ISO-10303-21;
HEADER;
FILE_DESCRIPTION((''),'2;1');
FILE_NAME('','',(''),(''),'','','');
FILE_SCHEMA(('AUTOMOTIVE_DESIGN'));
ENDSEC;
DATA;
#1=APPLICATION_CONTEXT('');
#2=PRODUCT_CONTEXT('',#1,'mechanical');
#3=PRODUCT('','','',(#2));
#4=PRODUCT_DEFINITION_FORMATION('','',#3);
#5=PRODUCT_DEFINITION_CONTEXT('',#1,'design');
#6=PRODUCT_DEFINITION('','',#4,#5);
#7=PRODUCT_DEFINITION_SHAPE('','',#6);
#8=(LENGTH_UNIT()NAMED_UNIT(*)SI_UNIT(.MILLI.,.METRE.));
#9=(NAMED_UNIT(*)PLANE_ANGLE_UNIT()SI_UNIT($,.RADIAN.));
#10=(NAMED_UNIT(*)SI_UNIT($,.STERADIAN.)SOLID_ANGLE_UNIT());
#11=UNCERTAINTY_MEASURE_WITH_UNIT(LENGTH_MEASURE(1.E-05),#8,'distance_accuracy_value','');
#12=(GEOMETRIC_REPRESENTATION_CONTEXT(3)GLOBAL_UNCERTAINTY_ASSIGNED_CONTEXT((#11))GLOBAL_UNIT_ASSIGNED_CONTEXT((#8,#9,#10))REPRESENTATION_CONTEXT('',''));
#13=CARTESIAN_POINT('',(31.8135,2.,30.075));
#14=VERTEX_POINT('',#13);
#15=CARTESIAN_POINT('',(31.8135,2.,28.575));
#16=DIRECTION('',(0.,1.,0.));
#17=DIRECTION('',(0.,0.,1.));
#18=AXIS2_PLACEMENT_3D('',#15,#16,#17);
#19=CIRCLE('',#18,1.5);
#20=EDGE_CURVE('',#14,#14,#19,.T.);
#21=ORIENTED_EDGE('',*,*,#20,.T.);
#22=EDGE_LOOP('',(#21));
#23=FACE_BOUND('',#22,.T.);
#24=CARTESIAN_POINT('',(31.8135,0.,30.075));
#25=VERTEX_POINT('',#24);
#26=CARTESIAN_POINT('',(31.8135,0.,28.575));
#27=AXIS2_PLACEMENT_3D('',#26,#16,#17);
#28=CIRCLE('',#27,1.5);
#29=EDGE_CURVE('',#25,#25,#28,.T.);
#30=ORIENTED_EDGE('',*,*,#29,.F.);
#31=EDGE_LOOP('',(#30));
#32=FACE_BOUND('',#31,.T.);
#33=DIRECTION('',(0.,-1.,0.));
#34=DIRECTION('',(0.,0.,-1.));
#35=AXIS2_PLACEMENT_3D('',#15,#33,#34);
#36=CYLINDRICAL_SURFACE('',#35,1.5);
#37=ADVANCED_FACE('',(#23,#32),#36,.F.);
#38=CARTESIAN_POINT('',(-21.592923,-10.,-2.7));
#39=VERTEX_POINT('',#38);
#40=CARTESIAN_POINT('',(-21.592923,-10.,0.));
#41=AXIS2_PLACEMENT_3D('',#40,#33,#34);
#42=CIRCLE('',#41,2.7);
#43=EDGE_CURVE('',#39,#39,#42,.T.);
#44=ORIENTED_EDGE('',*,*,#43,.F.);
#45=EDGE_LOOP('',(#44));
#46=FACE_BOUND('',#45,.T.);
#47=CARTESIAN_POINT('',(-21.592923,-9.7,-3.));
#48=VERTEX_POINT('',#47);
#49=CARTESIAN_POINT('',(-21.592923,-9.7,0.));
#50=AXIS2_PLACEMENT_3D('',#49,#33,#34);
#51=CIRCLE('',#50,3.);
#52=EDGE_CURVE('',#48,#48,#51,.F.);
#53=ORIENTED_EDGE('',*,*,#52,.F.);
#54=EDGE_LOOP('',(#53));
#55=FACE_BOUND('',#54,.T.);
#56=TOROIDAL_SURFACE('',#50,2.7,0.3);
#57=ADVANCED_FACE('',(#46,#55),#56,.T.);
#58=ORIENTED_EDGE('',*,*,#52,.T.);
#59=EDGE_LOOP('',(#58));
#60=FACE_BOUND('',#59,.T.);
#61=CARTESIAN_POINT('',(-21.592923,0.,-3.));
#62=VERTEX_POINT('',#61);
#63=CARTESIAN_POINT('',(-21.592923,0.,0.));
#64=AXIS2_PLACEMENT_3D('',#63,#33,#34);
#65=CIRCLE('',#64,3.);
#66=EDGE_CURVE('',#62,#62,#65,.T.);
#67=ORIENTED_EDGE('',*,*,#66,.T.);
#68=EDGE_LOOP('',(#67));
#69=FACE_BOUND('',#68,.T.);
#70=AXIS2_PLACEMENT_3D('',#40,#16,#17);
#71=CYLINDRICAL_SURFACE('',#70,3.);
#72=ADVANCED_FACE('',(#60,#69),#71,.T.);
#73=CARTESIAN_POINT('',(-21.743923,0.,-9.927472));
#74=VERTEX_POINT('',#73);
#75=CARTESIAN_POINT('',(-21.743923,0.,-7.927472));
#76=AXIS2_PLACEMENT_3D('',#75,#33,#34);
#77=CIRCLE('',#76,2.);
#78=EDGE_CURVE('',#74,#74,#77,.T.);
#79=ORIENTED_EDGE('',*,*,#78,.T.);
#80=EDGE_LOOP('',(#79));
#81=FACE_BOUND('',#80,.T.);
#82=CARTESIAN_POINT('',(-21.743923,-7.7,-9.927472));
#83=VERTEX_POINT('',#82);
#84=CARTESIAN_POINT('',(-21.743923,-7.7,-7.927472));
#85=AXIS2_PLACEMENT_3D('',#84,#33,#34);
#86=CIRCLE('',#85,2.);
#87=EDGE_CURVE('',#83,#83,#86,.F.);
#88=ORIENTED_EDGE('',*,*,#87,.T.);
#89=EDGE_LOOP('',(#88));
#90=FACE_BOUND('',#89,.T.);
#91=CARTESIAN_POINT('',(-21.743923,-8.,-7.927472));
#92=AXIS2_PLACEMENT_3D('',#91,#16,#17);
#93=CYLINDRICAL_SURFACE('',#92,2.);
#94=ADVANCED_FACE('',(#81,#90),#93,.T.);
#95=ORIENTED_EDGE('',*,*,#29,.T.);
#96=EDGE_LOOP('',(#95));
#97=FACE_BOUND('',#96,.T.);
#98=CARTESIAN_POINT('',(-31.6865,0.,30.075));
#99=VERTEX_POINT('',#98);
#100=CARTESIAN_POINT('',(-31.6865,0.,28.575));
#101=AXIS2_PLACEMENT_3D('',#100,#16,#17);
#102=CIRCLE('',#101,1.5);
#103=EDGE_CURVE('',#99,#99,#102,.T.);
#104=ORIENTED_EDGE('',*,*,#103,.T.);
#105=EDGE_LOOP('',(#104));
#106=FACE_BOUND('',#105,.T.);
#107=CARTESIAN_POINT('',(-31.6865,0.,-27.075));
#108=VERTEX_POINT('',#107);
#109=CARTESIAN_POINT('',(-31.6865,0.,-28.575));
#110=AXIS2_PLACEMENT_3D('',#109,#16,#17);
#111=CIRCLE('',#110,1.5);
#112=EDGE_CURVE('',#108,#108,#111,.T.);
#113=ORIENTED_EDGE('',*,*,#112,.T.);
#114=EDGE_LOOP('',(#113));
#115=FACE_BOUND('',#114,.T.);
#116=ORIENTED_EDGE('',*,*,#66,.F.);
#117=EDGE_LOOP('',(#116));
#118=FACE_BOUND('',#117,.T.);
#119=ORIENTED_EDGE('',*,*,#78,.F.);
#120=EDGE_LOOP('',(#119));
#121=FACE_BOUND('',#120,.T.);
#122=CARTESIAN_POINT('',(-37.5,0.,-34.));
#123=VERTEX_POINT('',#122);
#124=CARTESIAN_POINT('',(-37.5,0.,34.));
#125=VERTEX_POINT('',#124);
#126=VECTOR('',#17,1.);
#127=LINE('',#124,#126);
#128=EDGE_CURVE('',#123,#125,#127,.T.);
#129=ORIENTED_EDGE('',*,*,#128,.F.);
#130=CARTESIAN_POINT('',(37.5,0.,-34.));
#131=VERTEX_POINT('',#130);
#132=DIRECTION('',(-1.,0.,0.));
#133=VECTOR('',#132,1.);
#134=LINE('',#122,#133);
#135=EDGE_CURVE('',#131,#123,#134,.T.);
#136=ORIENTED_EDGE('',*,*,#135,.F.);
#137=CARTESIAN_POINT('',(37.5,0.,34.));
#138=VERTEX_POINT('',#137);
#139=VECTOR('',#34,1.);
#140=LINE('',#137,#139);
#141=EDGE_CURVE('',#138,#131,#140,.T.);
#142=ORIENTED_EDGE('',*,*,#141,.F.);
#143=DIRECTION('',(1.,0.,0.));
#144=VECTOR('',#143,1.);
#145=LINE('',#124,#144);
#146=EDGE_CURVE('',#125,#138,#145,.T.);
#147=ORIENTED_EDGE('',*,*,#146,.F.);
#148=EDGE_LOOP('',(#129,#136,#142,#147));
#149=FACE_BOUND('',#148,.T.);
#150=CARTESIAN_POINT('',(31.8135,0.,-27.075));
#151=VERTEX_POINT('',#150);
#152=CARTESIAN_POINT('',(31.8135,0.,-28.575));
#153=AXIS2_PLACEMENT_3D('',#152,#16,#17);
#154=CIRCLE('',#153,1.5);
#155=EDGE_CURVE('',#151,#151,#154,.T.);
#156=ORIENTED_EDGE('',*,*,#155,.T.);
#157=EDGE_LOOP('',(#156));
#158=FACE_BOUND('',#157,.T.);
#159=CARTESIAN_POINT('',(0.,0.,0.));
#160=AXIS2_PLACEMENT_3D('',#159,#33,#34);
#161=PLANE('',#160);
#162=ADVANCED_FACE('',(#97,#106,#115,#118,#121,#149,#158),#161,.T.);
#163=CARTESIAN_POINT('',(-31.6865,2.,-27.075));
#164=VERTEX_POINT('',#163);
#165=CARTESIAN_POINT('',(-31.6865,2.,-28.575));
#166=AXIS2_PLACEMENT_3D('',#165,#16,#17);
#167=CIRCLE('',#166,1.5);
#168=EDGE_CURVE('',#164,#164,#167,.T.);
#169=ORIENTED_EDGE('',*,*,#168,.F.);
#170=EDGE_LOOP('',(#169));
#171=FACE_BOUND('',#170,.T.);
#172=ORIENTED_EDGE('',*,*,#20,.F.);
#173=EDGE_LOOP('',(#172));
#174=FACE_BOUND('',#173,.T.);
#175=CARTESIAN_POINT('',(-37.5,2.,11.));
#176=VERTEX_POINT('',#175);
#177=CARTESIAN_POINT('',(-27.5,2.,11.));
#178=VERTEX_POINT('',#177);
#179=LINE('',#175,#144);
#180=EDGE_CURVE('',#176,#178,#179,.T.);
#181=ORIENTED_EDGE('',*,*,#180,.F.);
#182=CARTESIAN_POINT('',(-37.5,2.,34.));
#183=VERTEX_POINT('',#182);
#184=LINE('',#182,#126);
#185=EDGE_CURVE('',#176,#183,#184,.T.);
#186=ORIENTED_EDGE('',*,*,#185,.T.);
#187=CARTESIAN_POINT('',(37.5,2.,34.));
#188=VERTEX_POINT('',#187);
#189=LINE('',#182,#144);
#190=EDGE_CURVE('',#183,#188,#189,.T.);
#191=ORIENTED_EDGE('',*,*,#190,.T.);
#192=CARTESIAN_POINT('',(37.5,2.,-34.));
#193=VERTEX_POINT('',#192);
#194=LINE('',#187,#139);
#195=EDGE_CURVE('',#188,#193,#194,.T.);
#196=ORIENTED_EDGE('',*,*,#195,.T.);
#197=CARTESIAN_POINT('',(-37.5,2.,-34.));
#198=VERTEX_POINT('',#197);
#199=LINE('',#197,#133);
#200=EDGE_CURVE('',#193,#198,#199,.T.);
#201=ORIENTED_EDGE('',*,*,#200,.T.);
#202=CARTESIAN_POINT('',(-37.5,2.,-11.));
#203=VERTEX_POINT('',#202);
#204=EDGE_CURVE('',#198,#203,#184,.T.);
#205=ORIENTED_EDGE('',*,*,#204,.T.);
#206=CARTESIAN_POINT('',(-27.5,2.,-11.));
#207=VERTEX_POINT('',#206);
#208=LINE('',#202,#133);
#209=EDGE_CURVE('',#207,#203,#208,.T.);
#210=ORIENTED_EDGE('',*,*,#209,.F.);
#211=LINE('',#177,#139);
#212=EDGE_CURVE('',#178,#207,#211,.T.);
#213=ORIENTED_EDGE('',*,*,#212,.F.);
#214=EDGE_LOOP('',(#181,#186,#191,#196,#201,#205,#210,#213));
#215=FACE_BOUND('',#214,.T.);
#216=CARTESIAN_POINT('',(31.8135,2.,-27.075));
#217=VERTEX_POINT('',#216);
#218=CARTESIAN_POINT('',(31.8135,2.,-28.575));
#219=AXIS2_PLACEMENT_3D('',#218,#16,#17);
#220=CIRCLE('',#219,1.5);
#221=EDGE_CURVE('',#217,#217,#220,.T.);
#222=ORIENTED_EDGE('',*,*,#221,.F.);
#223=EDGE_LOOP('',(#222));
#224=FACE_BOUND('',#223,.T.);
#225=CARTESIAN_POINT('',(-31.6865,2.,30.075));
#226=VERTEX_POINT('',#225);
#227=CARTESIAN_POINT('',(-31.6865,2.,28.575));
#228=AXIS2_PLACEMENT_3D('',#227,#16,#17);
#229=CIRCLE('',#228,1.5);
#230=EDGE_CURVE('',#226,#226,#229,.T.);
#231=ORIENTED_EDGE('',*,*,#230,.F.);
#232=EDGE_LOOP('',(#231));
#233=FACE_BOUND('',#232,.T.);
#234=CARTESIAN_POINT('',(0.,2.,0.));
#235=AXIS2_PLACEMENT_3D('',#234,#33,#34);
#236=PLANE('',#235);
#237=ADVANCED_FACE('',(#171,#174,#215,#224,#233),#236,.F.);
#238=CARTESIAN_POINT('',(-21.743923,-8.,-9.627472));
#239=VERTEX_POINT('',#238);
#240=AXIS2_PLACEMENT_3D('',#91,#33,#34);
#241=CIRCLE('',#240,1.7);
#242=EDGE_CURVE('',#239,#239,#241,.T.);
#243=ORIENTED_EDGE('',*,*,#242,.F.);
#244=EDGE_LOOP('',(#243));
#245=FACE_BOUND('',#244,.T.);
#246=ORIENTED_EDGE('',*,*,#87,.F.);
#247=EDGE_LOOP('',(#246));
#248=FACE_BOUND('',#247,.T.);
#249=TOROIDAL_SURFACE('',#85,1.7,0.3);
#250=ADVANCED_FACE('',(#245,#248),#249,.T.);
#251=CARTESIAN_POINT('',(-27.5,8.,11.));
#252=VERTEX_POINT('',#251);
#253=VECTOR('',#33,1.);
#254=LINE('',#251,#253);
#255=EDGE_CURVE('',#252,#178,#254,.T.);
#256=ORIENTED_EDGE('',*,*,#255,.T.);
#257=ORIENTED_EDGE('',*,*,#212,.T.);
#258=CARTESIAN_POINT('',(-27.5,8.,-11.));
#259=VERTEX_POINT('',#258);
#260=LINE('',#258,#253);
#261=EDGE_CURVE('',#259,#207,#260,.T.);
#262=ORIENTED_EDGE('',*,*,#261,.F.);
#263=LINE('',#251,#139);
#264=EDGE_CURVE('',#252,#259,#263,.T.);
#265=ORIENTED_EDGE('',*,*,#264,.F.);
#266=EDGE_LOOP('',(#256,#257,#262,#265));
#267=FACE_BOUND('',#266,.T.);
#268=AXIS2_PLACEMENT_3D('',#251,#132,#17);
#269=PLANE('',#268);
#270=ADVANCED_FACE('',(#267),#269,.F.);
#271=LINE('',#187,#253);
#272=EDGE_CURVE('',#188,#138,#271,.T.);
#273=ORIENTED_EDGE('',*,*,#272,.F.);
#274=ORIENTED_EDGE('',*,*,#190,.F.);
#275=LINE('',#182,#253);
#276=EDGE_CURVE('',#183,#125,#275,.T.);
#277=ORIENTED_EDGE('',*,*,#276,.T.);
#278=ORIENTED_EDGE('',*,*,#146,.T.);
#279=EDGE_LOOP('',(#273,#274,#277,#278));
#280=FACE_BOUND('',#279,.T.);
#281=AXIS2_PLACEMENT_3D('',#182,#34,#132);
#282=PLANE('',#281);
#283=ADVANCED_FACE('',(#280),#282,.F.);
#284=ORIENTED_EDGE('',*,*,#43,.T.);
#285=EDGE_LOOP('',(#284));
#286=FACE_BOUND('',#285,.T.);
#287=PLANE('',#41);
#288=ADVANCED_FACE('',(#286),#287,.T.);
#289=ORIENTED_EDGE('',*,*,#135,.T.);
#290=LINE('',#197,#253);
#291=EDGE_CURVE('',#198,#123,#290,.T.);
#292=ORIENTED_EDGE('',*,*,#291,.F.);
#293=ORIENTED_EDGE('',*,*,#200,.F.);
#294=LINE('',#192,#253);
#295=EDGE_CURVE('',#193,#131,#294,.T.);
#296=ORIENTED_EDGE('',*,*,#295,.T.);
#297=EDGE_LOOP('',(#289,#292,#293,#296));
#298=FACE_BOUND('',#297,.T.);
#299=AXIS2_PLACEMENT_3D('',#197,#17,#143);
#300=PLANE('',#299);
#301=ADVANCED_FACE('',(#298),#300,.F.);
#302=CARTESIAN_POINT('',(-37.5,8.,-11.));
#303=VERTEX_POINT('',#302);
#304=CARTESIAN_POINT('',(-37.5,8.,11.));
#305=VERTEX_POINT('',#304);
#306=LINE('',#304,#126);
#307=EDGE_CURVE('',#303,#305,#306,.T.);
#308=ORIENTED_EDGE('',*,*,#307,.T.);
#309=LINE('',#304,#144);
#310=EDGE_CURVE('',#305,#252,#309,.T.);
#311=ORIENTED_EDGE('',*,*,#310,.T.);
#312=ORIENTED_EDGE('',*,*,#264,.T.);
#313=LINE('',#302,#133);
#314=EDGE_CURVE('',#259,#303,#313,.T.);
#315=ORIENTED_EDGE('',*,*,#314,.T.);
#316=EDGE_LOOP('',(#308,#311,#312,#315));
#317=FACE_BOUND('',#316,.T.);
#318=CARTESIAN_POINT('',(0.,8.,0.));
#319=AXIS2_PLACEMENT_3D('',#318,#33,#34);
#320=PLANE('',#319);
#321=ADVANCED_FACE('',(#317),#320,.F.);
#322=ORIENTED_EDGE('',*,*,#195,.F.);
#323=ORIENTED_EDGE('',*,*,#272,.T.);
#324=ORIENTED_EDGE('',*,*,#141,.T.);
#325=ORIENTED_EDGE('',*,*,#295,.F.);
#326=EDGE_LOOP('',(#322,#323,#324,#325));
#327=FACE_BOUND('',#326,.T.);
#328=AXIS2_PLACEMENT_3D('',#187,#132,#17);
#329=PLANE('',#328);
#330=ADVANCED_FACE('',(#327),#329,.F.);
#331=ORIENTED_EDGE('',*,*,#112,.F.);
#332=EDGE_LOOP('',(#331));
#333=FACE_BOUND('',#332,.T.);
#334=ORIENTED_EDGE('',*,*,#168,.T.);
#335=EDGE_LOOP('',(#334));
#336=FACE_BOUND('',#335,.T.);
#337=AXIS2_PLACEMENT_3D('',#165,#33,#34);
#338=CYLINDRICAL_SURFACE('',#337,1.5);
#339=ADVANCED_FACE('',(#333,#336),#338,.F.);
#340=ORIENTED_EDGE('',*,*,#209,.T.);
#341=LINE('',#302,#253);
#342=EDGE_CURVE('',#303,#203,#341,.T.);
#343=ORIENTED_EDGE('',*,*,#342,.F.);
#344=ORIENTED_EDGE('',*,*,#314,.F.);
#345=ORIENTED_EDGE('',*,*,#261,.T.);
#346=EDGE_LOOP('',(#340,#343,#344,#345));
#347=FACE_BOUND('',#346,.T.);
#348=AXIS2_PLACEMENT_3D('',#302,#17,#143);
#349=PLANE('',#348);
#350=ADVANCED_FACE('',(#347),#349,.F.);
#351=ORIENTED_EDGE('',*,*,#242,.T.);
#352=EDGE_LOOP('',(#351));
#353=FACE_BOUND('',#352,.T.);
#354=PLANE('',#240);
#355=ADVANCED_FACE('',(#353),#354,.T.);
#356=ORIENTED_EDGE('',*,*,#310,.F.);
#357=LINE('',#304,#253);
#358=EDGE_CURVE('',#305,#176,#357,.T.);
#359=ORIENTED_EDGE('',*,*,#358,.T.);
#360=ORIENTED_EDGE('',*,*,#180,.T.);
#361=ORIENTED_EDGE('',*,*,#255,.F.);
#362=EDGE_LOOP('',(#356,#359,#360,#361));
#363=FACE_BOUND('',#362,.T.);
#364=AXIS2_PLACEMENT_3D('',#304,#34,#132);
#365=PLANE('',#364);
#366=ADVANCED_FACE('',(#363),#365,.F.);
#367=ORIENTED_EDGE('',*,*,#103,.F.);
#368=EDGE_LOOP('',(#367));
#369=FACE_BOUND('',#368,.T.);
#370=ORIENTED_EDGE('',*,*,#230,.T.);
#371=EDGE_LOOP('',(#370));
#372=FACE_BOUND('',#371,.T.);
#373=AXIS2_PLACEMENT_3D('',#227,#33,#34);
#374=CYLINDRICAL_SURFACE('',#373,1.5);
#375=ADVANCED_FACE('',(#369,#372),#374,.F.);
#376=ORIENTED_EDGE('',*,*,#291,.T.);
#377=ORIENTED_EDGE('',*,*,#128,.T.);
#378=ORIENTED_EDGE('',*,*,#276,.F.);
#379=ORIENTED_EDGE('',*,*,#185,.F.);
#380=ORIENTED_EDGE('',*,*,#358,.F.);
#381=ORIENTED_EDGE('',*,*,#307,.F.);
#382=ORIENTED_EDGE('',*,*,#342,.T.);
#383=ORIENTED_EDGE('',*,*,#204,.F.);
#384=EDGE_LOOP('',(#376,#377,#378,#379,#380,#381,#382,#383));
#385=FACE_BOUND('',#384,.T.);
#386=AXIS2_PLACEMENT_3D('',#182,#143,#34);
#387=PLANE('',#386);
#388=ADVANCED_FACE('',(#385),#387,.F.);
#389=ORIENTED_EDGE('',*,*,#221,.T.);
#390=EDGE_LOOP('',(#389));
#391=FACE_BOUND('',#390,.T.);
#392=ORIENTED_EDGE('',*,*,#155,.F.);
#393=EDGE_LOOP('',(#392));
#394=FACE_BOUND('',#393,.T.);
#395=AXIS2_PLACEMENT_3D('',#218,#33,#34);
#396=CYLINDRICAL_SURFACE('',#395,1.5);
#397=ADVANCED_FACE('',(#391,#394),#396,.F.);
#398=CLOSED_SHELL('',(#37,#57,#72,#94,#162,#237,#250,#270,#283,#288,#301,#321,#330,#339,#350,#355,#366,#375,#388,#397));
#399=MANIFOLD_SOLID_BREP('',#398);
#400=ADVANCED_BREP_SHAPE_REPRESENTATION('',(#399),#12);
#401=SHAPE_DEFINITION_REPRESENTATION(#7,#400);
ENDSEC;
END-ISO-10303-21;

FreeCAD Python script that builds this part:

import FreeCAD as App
import Part
import Sketcher
from FreeCAD import Vector
Q = App.Units.Quantity


def edges_at(feature, points):
    """Names of the edges that pass closest to the given points."""
    edges = feature.Shape.Edges
    near = lambda p: min(range(len(edges)), key=lambda i: edges[i].distToShape(Part.Vertex(*p))[0])
    return sorted({f"Edge{near(p) + 1}" for p in points})


def add_polygon(sketch, points):
    """Adds a closed chain of lines whose ends are joined by coincident constraints."""
    first, n = sketch.GeometryCount, len(points)
    for a, b in zip(points, points[1:] + points[:1]):
        sketch.addGeometry(Part.LineSegment(App.Vector(*a, 0), App.Vector(*b, 0)), False)
    for i in range(n):
        sketch.addConstraint(Sketcher.Constraint("Coincident", first + i, 2, first + (i + 1) % n, 1))

doc = App.newDocument("Part")
body = doc.addObject("PartDesign::Body", "Body")

# Sketch on XZ plane
sketch1 = body.newObject("Sketcher::SketchObject", "Sketch")
sketch1.AttachmentSupport = (doc.getObject("XZ_Plane"), [""])
sketch1.MapMode = "FlatFace"
add_polygon(sketch1, [(-37.5, -34), (-37.5, 34), (37.5, 34), (37.5, -34)])  # lines 0-3
sketch1.addGeometry(Part.Circle(Vector(-31.7, 28.6, 0), Vector(0, 0, 1), 1.5), False)  # 4
sketch1.addGeometry(Part.Circle(Vector(31.8, 28.6, 0), Vector(0, 0, 1), 1.5), False)  # 5
sketch1.addGeometry(Part.Circle(Vector(-31.7, -28.6, 0), Vector(0, 0, 1), 1.5), False)  # 6
sketch1.addGeometry(Part.Circle(Vector(31.8, -28.6, 0), Vector(0, 0, 1), 1.5), False)  # 7
sketch1.addConstraint([
    Sketcher.Constraint("Vertical", 0),
    Sketcher.Constraint("Horizontal", 1),
    Sketcher.Constraint("Vertical", 2),
    Sketcher.Constraint("Horizontal", 3),
    Sketcher.Constraint("Equal", 4, 5),
    Sketcher.Constraint("Equal", 5, 6),
    Sketcher.Constraint("Equal", 6, 7),
    Sketcher.Constraint("Symmetric", 0, 2, 2, 2, -1, 1),
    Sketcher.Constraint("Symmetric", 4, 3, 6, 3, -1),
    Sketcher.Constraint("Symmetric", 5, 3, 7, 3, -1),
    Sketcher.Constraint("Horizontal", 4, 3, 5, 3),
    Sketcher.Constraint("Diameter", 4, Q("3 mm")),
    Sketcher.Constraint("DistanceX", 1, 1, 1, 2, Q("75 mm")),
    Sketcher.Constraint("DistanceY", 0, 1, 0, 2, Q("68 mm")),
    Sketcher.Constraint("DistanceX", 4, 3, 5, 3, Q("63.5 mm")),
    Sketcher.Constraint("DistanceY", 6, 3, 4, 3, Q("57.15 mm")),
    Sketcher.Constraint("DistanceX", 4, 3, -1, 1, Q("31.6865 mm")),
])
pad1 = body.newObject("PartDesign::Pad", "Pad")
pad1.Profile = sketch1
pad1.Length = 2
pad1.Reversed = True

# Sketch on XZ plane
sketch2 = body.newObject("Sketcher::SketchObject", "Sketch001")
sketch2.AttachmentSupport = (doc.getObject("XZ_Plane"), [""])
sketch2.MapMode = "FlatFace"
sketch2.addGeometry(Part.Circle(Vector(-21.6, 0, 0), Vector(0, 0, 1), 3), False)
sketch2.addConstraint([
    Sketcher.Constraint("PointOnObject", 0, 3, -1),
    Sketcher.Constraint("Diameter", 0, Q("6 mm")),
    Sketcher.Constraint("DistanceX", 0, 3, -1, 1, Q("21.592923 mm")),
])
pad2 = body.newObject("PartDesign::Pad", "Pad001")
pad2.Profile = sketch2
pad2.Length = 10

# Sketch on XZ plane
sketch3 = body.newObject("Sketcher::SketchObject", "Sketch002")
sketch3.AttachmentSupport = (doc.getObject("XZ_Plane"), [""])
sketch3.MapMode = "FlatFace"
sketch3.addGeometry(Part.Circle(Vector(-21.7, -7.9, 0), Vector(0, 0, 1), 2), False)
sketch3.addConstraint([
    Sketcher.Constraint("Diameter", 0, Q("4 mm")),
    Sketcher.Constraint("DistanceY", 0, 3, -1, 1, Q("7.927472 mm")),
    Sketcher.Constraint("DistanceX", 0, 3, -1, 1, Q("21.743923 mm")),
])
pad3 = body.newObject("PartDesign::Pad", "Pad002")
pad3.Profile = sketch3
pad3.Length = 8
doc.recompute()

fillet = body.newObject("PartDesign::Fillet", "Fillet")
fillet.Base = (pad3, edges_at(pad3, [(-21.593, -10, 3), (-21.744, -8, -5.927)]))
fillet.Radius = 0.3

# Sketch on XZ plane
sketch4 = body.newObject("Sketcher::SketchObject", "Sketch003")
sketch4.AttachmentSupport = (doc.getObject("XZ_Plane"), [""])
sketch4.MapMode = "FlatFace"
sketch4.AttachmentOffset = App.Placement(Vector(0, 0, -2), App.Rotation())
add_polygon(sketch4, [(-38, -11), (-38, 11), (-28, 11), (-28, -11)])  # lines 0-3
sketch4.addConstraint([
    Sketcher.Constraint("Vertical", 0),
    Sketcher.Constraint("Horizontal", 1),
    Sketcher.Constraint("Vertical", 2),
    Sketcher.Constraint("Horizontal", 3),
    Sketcher.Constraint("DistanceX", 1, 1, 1, 2, Q("10 mm")),
    Sketcher.Constraint("DistanceY", 0, 1, 0, 2, Q("22 mm")),
    Sketcher.Constraint("DistanceY", -1, 1, 0, 2, Q("11 mm")),
    Sketcher.Constraint("DistanceX", 0, 2, -1, 1, Q("37.5 mm")),
])
pad4 = body.newObject("PartDesign::Pad", "Pad003")
pad4.Profile = sketch4
pad4.Length = 6
pad4.Reversed = True

doc.recompute()
